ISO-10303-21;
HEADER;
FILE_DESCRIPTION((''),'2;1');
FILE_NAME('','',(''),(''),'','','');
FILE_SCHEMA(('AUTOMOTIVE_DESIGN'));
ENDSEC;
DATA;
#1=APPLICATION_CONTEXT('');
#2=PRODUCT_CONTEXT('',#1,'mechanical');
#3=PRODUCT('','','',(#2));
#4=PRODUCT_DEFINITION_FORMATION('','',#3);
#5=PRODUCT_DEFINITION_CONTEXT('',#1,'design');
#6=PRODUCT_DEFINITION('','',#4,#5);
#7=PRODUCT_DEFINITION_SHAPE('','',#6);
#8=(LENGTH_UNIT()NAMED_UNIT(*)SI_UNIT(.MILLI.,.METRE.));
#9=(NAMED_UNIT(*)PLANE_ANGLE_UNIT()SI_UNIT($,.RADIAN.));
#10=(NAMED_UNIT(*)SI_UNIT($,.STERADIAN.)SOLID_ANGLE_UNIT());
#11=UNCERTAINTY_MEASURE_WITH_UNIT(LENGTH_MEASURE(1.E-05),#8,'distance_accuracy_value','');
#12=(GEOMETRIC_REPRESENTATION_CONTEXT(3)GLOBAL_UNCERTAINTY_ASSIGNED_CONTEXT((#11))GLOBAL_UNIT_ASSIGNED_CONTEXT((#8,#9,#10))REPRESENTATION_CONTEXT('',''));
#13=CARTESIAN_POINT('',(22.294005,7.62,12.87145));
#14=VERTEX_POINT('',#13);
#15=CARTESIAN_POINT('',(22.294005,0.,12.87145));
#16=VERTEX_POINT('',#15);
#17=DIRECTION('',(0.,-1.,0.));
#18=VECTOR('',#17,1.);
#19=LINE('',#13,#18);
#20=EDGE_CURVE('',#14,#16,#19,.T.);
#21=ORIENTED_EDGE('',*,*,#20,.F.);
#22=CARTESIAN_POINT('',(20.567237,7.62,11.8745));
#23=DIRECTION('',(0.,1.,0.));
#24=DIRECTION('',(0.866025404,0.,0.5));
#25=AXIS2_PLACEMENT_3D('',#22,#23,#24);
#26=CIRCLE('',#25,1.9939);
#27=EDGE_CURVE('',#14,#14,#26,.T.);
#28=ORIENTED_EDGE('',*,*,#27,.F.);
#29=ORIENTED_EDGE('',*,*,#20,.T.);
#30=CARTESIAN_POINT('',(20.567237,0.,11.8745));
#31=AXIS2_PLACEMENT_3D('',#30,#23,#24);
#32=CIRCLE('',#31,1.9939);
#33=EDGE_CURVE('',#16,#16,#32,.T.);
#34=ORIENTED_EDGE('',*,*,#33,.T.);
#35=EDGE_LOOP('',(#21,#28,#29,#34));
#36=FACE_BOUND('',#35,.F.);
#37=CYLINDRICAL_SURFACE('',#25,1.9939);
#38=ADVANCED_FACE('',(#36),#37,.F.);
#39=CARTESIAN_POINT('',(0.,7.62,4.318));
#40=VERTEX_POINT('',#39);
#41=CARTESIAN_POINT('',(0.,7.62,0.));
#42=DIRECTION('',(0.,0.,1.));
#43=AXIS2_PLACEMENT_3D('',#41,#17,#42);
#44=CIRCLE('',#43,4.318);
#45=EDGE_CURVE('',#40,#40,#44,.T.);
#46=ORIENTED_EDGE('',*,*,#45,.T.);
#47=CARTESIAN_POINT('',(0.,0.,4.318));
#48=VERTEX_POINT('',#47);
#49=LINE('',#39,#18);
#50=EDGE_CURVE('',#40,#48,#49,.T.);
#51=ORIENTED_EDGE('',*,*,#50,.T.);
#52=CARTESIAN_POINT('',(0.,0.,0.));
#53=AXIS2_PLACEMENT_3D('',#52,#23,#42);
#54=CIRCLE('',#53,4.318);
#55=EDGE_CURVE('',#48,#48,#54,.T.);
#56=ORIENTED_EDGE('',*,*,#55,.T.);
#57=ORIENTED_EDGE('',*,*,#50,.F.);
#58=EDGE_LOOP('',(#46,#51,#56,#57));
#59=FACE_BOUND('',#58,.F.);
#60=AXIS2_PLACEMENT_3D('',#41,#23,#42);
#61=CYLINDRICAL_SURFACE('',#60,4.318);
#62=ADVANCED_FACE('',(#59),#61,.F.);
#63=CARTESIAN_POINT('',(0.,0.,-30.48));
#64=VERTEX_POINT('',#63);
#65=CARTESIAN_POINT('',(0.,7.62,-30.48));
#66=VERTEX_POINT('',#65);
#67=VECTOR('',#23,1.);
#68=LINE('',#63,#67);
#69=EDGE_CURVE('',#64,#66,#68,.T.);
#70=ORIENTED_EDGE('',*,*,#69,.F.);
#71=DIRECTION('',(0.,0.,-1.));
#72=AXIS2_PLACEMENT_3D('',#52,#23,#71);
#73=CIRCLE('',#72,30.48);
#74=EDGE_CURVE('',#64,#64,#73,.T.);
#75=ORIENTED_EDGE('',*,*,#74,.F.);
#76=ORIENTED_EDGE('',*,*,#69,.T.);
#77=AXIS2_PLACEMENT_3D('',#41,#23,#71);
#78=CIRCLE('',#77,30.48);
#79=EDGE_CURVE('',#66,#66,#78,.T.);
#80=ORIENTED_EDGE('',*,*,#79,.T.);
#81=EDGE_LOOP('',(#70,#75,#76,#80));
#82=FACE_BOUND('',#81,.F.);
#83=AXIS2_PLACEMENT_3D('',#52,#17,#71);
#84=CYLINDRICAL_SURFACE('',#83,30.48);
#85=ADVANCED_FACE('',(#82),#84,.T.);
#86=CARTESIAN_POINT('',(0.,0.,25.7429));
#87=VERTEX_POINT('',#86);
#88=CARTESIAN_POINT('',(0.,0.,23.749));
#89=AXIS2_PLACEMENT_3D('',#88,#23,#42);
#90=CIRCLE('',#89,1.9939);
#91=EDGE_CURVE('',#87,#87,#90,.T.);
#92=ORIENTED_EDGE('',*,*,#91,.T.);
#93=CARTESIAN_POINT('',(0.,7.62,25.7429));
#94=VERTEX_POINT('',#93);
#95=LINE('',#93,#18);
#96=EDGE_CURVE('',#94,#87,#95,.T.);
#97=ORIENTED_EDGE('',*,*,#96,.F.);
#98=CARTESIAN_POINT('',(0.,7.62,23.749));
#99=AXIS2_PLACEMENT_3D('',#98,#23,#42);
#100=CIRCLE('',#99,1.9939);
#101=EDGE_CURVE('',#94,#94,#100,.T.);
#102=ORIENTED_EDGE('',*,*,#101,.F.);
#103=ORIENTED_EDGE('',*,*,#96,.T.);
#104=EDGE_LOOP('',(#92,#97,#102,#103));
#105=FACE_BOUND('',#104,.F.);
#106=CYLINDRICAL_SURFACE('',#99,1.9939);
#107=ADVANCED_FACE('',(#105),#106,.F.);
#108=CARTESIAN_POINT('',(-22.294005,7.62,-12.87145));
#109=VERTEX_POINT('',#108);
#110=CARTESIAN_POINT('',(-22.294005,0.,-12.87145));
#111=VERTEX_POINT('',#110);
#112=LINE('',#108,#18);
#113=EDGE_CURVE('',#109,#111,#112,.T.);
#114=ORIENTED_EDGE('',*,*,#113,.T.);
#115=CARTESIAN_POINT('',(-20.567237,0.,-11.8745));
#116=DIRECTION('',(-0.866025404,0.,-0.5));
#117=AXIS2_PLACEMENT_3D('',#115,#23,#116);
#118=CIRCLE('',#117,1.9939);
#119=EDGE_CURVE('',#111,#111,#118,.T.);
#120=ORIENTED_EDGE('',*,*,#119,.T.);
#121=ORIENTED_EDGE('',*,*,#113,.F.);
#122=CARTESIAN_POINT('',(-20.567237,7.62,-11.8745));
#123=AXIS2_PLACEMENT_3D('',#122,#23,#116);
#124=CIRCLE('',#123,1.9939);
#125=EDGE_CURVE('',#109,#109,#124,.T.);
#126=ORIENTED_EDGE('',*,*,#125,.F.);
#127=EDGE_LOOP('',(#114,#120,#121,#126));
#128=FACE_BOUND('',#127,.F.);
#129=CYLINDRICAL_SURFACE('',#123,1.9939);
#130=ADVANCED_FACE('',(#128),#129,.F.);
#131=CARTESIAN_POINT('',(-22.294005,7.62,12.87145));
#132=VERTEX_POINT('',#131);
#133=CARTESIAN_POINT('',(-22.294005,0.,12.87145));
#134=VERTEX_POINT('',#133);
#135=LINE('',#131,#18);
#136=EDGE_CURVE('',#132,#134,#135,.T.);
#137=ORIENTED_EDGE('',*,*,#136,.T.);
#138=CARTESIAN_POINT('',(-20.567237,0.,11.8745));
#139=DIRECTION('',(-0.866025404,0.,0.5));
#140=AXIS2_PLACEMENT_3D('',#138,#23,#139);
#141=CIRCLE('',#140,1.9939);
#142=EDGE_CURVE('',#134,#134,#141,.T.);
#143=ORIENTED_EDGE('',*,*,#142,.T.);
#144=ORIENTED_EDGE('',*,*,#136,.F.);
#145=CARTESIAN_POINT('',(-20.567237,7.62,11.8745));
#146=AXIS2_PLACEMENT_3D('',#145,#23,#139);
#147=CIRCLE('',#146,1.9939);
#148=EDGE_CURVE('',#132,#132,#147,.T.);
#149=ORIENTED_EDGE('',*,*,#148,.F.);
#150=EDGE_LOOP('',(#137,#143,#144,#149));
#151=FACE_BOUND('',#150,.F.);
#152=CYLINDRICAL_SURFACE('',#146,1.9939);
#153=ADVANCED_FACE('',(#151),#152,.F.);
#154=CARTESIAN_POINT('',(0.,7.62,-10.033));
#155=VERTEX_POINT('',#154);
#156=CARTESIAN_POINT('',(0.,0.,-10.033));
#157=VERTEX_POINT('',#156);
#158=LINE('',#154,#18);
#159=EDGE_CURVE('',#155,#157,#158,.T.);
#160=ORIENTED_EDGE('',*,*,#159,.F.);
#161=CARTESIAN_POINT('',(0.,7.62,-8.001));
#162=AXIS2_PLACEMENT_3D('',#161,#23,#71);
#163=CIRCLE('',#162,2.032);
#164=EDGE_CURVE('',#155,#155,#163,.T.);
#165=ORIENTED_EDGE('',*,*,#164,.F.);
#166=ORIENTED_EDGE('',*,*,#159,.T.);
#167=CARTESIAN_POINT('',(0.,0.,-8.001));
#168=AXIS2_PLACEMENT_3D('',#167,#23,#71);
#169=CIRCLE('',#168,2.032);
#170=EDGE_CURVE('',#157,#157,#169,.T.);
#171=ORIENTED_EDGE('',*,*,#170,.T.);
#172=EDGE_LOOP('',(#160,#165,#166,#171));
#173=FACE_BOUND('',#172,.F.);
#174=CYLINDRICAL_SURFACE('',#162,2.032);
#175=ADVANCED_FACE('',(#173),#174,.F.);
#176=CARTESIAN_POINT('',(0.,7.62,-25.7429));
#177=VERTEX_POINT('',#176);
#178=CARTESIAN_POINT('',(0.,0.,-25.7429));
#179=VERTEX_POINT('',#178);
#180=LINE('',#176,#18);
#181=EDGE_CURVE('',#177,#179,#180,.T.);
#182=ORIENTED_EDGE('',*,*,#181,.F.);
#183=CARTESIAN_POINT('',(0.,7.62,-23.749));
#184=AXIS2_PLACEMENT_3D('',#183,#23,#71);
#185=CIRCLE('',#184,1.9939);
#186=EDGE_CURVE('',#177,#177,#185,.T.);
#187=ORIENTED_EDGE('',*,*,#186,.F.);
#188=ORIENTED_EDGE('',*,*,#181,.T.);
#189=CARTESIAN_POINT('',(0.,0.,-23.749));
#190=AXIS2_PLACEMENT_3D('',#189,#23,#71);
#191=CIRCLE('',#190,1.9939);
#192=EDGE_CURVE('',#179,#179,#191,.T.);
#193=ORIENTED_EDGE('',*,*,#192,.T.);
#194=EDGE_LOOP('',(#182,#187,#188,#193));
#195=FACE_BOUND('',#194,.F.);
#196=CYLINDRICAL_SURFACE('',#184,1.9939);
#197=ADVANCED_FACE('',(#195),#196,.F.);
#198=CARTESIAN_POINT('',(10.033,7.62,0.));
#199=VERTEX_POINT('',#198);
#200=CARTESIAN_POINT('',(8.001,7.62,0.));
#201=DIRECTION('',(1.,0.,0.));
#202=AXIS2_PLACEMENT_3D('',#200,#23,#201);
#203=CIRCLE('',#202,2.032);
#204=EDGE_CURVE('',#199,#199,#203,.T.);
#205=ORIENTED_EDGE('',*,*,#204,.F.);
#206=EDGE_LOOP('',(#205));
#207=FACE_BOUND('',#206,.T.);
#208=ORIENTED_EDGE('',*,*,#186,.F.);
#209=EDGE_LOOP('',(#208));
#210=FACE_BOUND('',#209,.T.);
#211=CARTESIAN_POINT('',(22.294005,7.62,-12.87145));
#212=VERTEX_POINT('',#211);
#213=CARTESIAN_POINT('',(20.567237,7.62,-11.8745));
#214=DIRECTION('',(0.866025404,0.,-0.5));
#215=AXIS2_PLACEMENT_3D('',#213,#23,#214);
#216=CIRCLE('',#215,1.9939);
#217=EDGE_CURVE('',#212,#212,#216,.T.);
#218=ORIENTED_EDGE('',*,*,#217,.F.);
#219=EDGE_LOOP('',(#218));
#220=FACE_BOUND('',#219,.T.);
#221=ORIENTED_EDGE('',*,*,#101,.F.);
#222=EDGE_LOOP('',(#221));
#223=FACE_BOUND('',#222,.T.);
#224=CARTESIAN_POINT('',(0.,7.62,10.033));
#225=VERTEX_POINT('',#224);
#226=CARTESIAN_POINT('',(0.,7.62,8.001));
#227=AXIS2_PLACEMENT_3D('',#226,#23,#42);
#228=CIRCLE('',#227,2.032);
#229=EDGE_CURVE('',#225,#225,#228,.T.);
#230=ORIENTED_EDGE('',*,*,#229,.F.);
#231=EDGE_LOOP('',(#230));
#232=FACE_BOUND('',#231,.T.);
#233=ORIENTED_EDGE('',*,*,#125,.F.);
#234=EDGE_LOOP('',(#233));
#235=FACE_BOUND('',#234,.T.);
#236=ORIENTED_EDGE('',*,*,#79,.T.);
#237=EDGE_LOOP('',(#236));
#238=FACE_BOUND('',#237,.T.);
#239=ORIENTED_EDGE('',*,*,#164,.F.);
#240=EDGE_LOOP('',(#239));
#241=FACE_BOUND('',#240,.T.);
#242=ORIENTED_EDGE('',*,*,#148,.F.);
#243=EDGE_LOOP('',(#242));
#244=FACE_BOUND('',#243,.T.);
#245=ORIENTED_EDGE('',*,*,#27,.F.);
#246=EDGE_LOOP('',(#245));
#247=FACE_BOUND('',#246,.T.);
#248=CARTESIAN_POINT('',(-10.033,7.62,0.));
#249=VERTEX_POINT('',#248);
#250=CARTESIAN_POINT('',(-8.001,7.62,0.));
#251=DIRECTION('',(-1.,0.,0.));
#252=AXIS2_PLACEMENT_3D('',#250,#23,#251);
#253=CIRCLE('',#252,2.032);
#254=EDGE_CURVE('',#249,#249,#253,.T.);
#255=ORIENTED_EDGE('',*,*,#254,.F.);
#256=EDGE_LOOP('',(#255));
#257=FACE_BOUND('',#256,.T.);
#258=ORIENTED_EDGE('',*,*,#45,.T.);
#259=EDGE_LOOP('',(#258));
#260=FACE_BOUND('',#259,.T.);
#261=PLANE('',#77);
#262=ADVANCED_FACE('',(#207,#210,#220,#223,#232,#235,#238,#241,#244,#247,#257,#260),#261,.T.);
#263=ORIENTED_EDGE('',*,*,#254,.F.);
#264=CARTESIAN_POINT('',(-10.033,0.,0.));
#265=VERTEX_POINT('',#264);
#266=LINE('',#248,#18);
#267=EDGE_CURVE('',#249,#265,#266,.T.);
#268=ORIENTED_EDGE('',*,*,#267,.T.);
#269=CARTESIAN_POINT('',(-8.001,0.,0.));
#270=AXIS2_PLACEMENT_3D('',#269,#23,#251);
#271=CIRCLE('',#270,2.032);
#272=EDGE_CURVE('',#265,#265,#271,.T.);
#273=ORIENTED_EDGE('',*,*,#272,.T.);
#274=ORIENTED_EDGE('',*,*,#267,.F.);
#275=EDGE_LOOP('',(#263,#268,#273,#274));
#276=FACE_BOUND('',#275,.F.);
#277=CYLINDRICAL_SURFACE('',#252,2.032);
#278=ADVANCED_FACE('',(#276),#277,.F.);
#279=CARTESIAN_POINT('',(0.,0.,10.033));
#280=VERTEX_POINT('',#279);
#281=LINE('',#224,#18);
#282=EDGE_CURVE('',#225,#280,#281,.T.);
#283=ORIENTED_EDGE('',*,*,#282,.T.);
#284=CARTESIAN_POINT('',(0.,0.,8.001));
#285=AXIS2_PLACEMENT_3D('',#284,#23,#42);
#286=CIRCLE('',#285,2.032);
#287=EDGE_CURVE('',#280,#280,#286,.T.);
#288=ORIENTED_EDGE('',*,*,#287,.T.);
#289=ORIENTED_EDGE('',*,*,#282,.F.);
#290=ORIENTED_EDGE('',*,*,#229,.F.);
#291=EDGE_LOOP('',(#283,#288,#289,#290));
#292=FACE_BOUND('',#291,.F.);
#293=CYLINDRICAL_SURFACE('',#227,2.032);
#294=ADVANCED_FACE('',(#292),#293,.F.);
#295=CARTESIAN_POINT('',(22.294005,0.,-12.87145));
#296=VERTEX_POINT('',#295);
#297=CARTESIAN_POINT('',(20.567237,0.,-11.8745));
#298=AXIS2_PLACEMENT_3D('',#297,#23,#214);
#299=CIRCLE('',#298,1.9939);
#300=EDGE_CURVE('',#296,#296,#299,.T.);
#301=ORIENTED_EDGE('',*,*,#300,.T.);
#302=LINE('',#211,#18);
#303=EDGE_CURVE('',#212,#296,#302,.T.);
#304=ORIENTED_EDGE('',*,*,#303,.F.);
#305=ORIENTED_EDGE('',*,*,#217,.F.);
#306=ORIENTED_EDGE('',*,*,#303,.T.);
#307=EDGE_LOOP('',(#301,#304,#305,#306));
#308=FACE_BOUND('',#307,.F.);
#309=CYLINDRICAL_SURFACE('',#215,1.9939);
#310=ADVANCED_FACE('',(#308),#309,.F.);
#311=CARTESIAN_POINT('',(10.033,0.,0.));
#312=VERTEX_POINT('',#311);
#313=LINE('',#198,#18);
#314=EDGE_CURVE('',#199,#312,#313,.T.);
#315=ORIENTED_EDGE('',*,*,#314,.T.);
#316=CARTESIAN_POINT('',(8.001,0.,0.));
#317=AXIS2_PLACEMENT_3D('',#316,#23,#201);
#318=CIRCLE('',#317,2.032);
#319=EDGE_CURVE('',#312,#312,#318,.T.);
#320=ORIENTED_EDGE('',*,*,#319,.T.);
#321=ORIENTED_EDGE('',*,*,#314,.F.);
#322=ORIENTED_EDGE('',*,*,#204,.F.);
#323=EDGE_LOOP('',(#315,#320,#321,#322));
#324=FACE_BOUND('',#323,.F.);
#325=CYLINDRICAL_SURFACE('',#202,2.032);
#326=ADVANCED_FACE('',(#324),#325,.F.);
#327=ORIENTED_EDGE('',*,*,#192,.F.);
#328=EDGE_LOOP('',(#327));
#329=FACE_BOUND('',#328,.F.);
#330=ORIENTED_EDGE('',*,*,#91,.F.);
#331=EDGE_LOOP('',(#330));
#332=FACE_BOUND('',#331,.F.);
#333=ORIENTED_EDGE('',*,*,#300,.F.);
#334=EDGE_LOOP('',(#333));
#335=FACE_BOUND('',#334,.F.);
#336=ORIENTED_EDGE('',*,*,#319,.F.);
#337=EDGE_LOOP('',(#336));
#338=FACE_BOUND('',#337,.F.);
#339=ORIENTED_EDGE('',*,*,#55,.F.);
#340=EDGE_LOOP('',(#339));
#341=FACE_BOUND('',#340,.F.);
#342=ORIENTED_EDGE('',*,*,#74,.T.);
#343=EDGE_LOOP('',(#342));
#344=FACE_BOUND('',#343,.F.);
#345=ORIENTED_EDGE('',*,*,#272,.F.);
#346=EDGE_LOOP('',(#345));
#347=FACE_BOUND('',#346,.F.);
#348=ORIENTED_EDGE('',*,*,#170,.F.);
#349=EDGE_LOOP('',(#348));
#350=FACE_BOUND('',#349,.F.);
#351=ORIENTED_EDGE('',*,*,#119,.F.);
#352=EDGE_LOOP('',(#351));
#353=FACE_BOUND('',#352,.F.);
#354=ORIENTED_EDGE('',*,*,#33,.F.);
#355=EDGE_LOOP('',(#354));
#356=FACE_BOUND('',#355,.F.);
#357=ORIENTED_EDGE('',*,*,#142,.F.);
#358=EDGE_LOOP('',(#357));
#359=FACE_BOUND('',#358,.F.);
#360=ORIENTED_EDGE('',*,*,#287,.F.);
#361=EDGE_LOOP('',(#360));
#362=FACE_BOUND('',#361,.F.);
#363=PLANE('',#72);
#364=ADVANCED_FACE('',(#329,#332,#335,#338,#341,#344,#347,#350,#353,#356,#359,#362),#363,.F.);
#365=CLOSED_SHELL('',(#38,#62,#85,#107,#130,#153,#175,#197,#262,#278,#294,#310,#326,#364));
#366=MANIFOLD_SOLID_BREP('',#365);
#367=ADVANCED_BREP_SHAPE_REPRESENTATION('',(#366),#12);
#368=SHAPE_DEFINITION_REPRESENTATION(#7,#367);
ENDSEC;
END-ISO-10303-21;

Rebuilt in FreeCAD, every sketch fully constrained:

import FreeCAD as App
import Part
import Sketcher
Q = App.Units.Quantity

doc = App.newDocument("Part")
body = doc.addObject("PartDesign::Body", "Body")

sketch1 = body.newObject("Sketcher::SketchObject", "Sketch")
sketch1.AttachmentSupport = (doc.getObject("XZ_Plane"), [""])
sketch1.MapMode = "FlatFace"
sketch1.addGeometry(Part.Circle(App.Vector(0, 0, 0), App.Vector(0, 0, 1), 30.48), False)
sketch1.addConstraint(Sketcher.Constraint("Coincident", 0, 3, -1, 1))
sketch1.addConstraint(Sketcher.Constraint("Diameter", 0, Q("2.4 in")))
pad1 = body.newObject("PartDesign::Pad", "Pad")
pad1.Profile = sketch1
pad1.Length = Q("0.3 in")
pad1.Reversed = True

sketch2 = body.newObject("Sketcher::SketchObject", "Sketch001")
sketch2.AttachmentSupport = (doc.getObject("XZ_Plane"), [""])
sketch2.MapMode = "FlatFace"
sketch2.AttachmentOffset = App.Placement(App.Vector(0, 0, -0.3 * 25.4), App.Rotation())
sketch2.addGeometry(Part.Circle(App.Vector(0, 23.749, 0), App.Vector(0, 0, 1), 1.9939), False)
sketch2.addConstraint(Sketcher.Constraint("PointOnObject", 0, 3, -2))
sketch2.addConstraint(Sketcher.Constraint("Diameter", 0, Q("0.157 in")))
sketch2.addConstraint(Sketcher.Constraint("DistanceY", -1, 1, 0, 3, Q("0.935 in")))
pocket1 = body.newObject("PartDesign::Pocket", "Pocket")
pocket1.Profile = sketch2
pocket1.Type = "ThroughAll"
pocket1.Reversed = True
doc.recompute()

polarpattern = body.newObject("PartDesign::PolarPattern", "PolarPattern")
polarpattern.Originals = [pocket1]
polarpattern.Axis = (doc.getObject("Y_Axis"), [""])
polarpattern.Angle = 360
polarpattern.Occurrences = 6
body.Tip = polarpattern

sketch3 = body.newObject("Sketcher::SketchObject", "Sketch002")
sketch3.AttachmentSupport = (doc.getObject("XZ_Plane"), [""])
sketch3.MapMode = "FlatFace"
sketch3.AttachmentOffset = App.Placement(App.Vector(0, 0, -0.3 * 25.4), App.Rotation())
sketch3.addGeometry(Part.Circle(App.Vector(0, 0, 0), App.Vector(0, 0, 1), 4.318), False)
sketch3.addGeometry(Part.Circle(App.Vector(0, 8.001, 0), App.Vector(0, 0, 1), 2.032), False)
sketch3.addConstraint(Sketcher.Constraint("Coincident", 0, 3, -1, 1))
sketch3.addConstraint(Sketcher.Constraint("PointOnObject", 1, 3, -2))
sketch3.addConstraint(Sketcher.Constraint("Diameter", 0, Q("0.34 in")))
sketch3.addConstraint(Sketcher.Constraint("Diameter", 1, Q("0.16 in")))
sketch3.addConstraint(Sketcher.Constraint("DistanceY", -1, 1, 1, 3, Q("0.315 in")))
pocket2 = body.newObject("PartDesign::Pocket", "Pocket001")
pocket2.Profile = sketch3
pocket2.Type = "ThroughAll"
pocket2.Reversed = True
doc.recompute()

polarpattern2 = body.newObject("PartDesign::PolarPattern", "PolarPattern001")
polarpattern2.Originals = [pocket2]
polarpattern2.Axis = (doc.getObject("Y_Axis"), [""])
polarpattern2.Angle = 360
polarpattern2.Occurrences = 4
body.Tip = polarpattern2

doc.recompute()
